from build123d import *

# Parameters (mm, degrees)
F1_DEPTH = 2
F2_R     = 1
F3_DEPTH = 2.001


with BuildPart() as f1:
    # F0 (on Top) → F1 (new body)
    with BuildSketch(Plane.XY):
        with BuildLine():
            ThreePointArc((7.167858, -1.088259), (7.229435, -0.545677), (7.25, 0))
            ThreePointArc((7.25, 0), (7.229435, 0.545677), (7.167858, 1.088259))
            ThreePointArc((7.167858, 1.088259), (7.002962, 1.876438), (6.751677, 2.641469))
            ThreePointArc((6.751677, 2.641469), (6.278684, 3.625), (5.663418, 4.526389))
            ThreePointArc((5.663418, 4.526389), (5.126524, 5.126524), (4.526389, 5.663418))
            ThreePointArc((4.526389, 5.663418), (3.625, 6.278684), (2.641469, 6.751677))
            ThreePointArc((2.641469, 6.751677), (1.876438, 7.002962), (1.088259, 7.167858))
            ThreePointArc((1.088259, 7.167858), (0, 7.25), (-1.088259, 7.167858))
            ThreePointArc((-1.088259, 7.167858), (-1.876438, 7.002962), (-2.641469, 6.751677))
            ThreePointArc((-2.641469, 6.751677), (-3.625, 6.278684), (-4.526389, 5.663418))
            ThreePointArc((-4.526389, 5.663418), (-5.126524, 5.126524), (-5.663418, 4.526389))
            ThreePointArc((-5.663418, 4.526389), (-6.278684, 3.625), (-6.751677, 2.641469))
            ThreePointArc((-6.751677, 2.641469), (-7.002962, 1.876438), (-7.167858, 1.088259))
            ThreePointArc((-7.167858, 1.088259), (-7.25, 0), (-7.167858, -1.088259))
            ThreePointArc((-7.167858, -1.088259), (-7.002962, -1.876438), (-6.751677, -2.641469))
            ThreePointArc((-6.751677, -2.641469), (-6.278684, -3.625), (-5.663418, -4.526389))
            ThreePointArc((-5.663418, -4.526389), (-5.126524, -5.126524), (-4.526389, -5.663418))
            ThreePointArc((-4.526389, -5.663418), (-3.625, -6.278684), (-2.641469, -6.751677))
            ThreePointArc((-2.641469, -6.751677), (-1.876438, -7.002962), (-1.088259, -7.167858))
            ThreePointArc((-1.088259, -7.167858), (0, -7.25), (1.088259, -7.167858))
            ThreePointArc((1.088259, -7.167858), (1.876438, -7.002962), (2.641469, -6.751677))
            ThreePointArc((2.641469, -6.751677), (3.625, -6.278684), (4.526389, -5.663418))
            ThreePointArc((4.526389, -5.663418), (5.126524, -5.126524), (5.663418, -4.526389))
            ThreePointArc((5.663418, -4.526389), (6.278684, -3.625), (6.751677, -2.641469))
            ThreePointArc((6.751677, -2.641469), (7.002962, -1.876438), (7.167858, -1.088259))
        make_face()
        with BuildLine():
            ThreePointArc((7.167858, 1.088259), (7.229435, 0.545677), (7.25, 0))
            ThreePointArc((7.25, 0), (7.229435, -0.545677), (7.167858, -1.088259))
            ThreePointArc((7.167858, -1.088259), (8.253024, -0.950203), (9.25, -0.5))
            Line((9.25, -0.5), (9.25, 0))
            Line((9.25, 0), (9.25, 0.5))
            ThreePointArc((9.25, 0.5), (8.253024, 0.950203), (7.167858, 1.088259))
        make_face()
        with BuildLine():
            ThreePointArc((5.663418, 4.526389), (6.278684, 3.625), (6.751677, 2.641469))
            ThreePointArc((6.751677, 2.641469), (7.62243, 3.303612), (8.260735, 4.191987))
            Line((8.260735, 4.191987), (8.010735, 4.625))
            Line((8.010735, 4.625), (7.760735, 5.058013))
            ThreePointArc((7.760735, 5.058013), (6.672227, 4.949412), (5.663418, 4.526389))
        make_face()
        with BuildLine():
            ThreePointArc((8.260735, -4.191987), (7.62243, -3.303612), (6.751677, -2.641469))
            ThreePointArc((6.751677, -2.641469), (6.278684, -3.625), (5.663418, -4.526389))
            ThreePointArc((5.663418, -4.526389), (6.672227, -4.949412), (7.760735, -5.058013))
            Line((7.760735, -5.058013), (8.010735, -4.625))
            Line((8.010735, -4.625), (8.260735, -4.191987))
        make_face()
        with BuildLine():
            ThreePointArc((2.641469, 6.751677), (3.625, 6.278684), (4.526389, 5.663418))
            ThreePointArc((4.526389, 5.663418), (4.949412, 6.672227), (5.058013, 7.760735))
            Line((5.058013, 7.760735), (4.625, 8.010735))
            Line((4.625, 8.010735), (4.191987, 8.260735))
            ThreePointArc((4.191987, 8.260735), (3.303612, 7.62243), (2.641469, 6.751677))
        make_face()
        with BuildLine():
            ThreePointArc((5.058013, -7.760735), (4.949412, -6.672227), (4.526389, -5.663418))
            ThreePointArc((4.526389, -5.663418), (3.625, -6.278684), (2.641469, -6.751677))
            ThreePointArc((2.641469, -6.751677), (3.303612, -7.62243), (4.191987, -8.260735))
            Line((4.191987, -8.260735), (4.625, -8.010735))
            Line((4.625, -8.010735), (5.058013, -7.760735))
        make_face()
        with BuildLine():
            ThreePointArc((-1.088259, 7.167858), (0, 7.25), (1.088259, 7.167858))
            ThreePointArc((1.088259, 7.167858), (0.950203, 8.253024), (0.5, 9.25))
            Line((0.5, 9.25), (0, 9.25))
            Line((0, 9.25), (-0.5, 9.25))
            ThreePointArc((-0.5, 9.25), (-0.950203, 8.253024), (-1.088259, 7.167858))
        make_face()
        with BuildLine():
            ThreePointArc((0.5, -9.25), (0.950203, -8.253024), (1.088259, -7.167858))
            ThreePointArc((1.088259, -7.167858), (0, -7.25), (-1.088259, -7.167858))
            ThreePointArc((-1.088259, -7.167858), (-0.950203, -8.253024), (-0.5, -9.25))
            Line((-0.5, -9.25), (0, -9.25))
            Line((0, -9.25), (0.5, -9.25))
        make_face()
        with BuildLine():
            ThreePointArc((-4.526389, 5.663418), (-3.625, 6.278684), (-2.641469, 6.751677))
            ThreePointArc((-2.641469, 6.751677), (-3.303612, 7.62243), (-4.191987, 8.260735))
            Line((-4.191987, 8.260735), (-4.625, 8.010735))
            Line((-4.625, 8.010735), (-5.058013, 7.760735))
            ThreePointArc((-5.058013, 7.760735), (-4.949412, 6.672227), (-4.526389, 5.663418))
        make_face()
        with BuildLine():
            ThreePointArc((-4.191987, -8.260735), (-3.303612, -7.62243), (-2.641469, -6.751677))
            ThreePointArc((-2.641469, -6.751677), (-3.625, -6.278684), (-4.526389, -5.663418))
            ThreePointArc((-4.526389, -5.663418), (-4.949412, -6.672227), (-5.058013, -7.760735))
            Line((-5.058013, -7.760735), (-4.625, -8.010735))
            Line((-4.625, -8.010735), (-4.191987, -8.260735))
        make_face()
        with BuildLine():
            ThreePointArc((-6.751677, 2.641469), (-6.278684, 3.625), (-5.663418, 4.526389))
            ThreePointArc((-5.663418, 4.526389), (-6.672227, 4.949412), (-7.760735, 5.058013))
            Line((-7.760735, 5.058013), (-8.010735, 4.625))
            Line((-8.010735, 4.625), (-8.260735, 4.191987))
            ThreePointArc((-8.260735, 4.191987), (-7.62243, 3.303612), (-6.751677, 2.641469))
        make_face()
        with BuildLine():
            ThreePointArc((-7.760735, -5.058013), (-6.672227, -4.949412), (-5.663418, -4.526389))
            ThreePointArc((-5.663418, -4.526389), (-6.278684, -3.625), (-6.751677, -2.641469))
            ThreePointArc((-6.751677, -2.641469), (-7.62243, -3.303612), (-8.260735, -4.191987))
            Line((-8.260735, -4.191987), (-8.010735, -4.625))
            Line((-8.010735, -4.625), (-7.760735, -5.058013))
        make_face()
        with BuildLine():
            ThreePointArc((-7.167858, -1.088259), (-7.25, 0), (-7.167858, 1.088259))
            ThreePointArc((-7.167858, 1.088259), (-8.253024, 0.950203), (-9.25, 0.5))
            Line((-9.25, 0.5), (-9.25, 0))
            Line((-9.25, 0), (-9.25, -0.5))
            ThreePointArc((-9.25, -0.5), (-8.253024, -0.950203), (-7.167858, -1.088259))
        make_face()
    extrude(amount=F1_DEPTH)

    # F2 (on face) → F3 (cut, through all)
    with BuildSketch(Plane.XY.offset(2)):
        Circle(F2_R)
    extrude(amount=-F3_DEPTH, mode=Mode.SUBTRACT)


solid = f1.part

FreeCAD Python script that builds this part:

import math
import FreeCAD as App
import Part
import Sketcher
Q = App.Units.Quantity

doc = App.newDocument("Part")
body = doc.addObject("PartDesign::Body", "Body")

sketch1 = body.newObject("Sketcher::SketchObject", "Sketch")
sketch1.AttachmentSupport = (doc.getObject("XY_Plane"), [""])
sketch1.MapMode = "FlatFace"
sketch1.addGeometry(Part.ArcOfCircle(Part.Circle(App.Vector(-0.000022, -0.000004, 0), App.Vector(0, 0, 1), 7.250022), math.radians(8.633002), math.radians(21.366973)), False)
sketch1.addGeometry(Part.ArcOfCircle(Part.Circle(App.Vector(4.978677, 5.876672, 0), App.Vector(0, 0, 1), 3.689183), math.radians(-61.275778), math.radians(-27.171499)), False)
sketch1.addGeometry(Part.LineSegment(App.Vector(8.260735, 4.191987, 0), App.Vector(7.760735, 5.058013, 0)), False)
sketch1.addGeometry(Part.ArcOfCircle(Part.Circle(App.Vector(7.578686, 1.373326, 0), App.Vector(0, 0, 1), 3.689181), math.radians(87.1715), math.radians(121.275799)), False)
sketch1.addGeometry(Part.ArcOfCircle(Part.Circle(App.Vector(-0.000033, -0.000033, 0), App.Vector(0, 0, 1), 7.250046), math.radians(38.633033), math.radians(51.366967)), False)
sketch1.addGeometry(Part.ArcOfCircle(Part.Circle(App.Vector(1.373326, 7.578686, 0), App.Vector(0, 0, 1), 3.689181), math.radians(-31.275799), math.radians(2.8285)), False)
sketch1.addGeometry(Part.LineSegment(App.Vector(5.058013, 7.760735, 0), App.Vector(4.191987, 8.260735, 0)), False)
sketch1.addGeometry(Part.ArcOfCircle(Part.Circle(App.Vector(5.876672, 4.978677, 0), App.Vector(0, 0, 1), 3.689183), math.radians(117.171499), math.radians(151.275778)), False)
sketch1.addGeometry(Part.ArcOfCircle(Part.Circle(App.Vector(-0.000004, -0.000022, 0), App.Vector(0, 0, 1), 7.250022), math.radians(68.633027), math.radians(81.366998)), False)
sketch1.addGeometry(Part.ArcOfCircle(Part.Circle(App.Vector(-2.600007, 7.249998, 0), App.Vector(0, 0, 1), 3.689181), math.radians(-1.275796), math.radians(32.828514)), False)
sketch1.addGeometry(Part.LineSegment(App.Vector(0.5, 9.25, 0), App.Vector(-0.5, 9.25, 0)), False)
sketch1.addGeometry(Part.ArcOfCircle(Part.Circle(App.Vector(2.600007, 7.249998, 0), App.Vector(0, 0, 1), 3.689181), math.radians(147.171486), math.radians(181.275796)), False)
sketch1.addGeometry(Part.ArcOfCircle(Part.Circle(App.Vector(0.000004, -0.000022, 0), App.Vector(0, 0, 1), 7.250022), math.radians(98.633002), math.radians(111.366973)), False)
sketch1.addGeometry(Part.ArcOfCircle(Part.Circle(App.Vector(-5.876672, 4.978677, 0), App.Vector(0, 0, 1), 3.689183), math.radians(28.724222), math.radians(62.828501)), False)
sketch1.addGeometry(Part.LineSegment(App.Vector(-4.191987, 8.260735, 0), App.Vector(-5.058013, 7.760735, 0)), False)
sketch1.addGeometry(Part.ArcOfCircle(Part.Circle(App.Vector(-1.373326, 7.578686, 0), App.Vector(0, 0, 1), 3.689181), math.radians(177.1715), math.radians(211.275799)), False)
sketch1.addGeometry(Part.ArcOfCircle(Part.Circle(App.Vector(0.000033, -0.000033, 0), App.Vector(0, 0, 1), 7.250046), math.radians(128.633033), math.radians(141.366967)), False)
sketch1.addGeometry(Part.ArcOfCircle(Part.Circle(App.Vector(-7.578686, 1.373326, 0), App.Vector(0, 0, 1), 3.689181), math.radians(58.724201), math.radians(92.8285)), False)
sketch1.addGeometry(Part.LineSegment(App.Vector(-7.760735, 5.058013, 0), App.Vector(-8.260735, 4.191987, 0)), False)
sketch1.addGeometry(Part.ArcOfCircle(Part.Circle(App.Vector(-4.978677, 5.876672, 0), App.Vector(0, 0, 1), 3.689183), math.radians(-152.828501), math.radians(-118.724222)), False)
sketch1.addGeometry(Part.ArcOfCircle(Part.Circle(App.Vector(0.000022, -0.000004, 0), App.Vector(0, 0, 1), 7.250022), math.radians(158.633027), math.radians(171.366998)), False)
sketch1.addGeometry(Part.ArcOfCircle(Part.Circle(App.Vector(-7.249998, -2.600007, 0), App.Vector(0, 0, 1), 3.689181), math.radians(88.724204), math.radians(122.828514)), False)
sketch1.addGeometry(Part.LineSegment(App.Vector(-9.25, 0.5, 0), App.Vector(-9.25, -0.5, 0)), False)
sketch1.addGeometry(Part.ArcOfCircle(Part.Circle(App.Vector(-7.249998, 2.600007, 0), App.Vector(0, 0, 1), 3.689181), math.radians(-122.828514), math.radians(-88.724204)), False)
sketch1.addGeometry(Part.ArcOfCircle(Part.Circle(App.Vector(0.000022, 0.000004, 0), App.Vector(0, 0, 1), 7.250022), math.radians(-171.366998), math.radians(-158.633027)), False)
sketch1.addGeometry(Part.ArcOfCircle(Part.Circle(App.Vector(-4.978677, -5.876672, 0), App.Vector(0, 0, 1), 3.689183), math.radians(118.724222), math.radians(152.828501)), False)
sketch1.addGeometry(Part.LineSegment(App.Vector(-8.260735, -4.191987, 0), App.Vector(-7.760735, -5.058013, 0)), False)
sketch1.addGeometry(Part.ArcOfCircle(Part.Circle(App.Vector(-7.578686, -1.373326, 0), App.Vector(0, 0, 1), 3.689181), math.radians(-92.8285), math.radians(-58.724201)), False)
sketch1.addGeometry(Part.ArcOfCircle(Part.Circle(App.Vector(0.000033, 0.000033, 0), App.Vector(0, 0, 1), 7.250046), math.radians(-141.366967), math.radians(-128.633033)), False)
sketch1.addGeometry(Part.ArcOfCircle(Part.Circle(App.Vector(-1.373326, -7.578686, 0), App.Vector(0, 0, 1), 3.689181), math.radians(148.724201), math.radians(182.8285)), False)
sketch1.addGeometry(Part.LineSegment(App.Vector(-5.058013, -7.760735, 0), App.Vector(-4.191987, -8.260735, 0)), False)
sketch1.addGeometry(Part.ArcOfCircle(Part.Circle(App.Vector(-5.876672, -4.978677, 0), App.Vector(0, 0, 1), 3.689183), math.radians(-62.828501), math.radians(-28.724222)), False)
sketch1.addGeometry(Part.ArcOfCircle(Part.Circle(App.Vector(0.000004, 0.000022, 0), App.Vector(0, 0, 1), 7.250022), math.radians(-111.366973), math.radians(-98.633002)), False)
sketch1.addGeometry(Part.ArcOfCircle(Part.Circle(App.Vector(2.600007, -7.249998, 0), App.Vector(0, 0, 1), 3.689181), math.radians(178.724204), math.radians(212.828514)), False)
sketch1.addGeometry(Part.LineSegment(App.Vector(-0.5, -9.25, 0), App.Vector(0.5, -9.25, 0)), False)
sketch1.addGeometry(Part.ArcOfCircle(Part.Circle(App.Vector(-2.600007, -7.249998, 0), App.Vector(0, 0, 1), 3.689181), math.radians(-32.828514), math.radians(1.275796)), False)
sketch1.addGeometry(Part.ArcOfCircle(Part.Circle(App.Vector(-0.000004, 0.000022, 0), App.Vector(0, 0, 1), 7.250022), math.radians(-81.366998), math.radians(-68.633027)), False)
sketch1.addGeometry(Part.ArcOfCircle(Part.Circle(App.Vector(5.876672, -4.978677, 0), App.Vector(0, 0, 1), 3.689183), math.radians(-151.275778), math.radians(-117.171499)), False)
sketch1.addGeometry(Part.LineSegment(App.Vector(4.191987, -8.260735, 0), App.Vector(5.058013, -7.760735, 0)), False)
sketch1.addGeometry(Part.ArcOfCircle(Part.Circle(App.Vector(1.373326, -7.578686, 0), App.Vector(0, 0, 1), 3.689181), math.radians(-2.8285), math.radians(31.275799)), False)
sketch1.addGeometry(Part.ArcOfCircle(Part.Circle(App.Vector(-0.000033, 0.000033, 0), App.Vector(0, 0, 1), 7.250046), math.radians(-51.366967), math.radians(-38.633033)), False)
sketch1.addGeometry(Part.ArcOfCircle(Part.Circle(App.Vector(7.578686, -1.373326, 0), App.Vector(0, 0, 1), 3.689181), math.radians(-121.275799), math.radians(-87.1715)), False)
sketch1.addGeometry(Part.LineSegment(App.Vector(7.760735, -5.058013, 0), App.Vector(8.260735, -4.191987, 0)), False)
sketch1.addGeometry(Part.ArcOfCircle(Part.Circle(App.Vector(4.978677, -5.876672, 0), App.Vector(0, 0, 1), 3.689183), math.radians(27.171499), math.radians(61.275778)), False)
sketch1.addGeometry(Part.ArcOfCircle(Part.Circle(App.Vector(-0.000022, 0.000004, 0), App.Vector(0, 0, 1), 7.250022), math.radians(-21.366973), math.radians(-8.633002)), False)
sketch1.addGeometry(Part.ArcOfCircle(Part.Circle(App.Vector(7.249998, 2.600007, 0), App.Vector(0, 0, 1), 3.689181), math.radians(-91.275796), math.radians(-57.171486)), False)
sketch1.addGeometry(Part.LineSegment(App.Vector(9.25, -0.5, 0), App.Vector(9.25, 0.5, 0)), False)
sketch1.addGeometry(Part.ArcOfCircle(Part.Circle(App.Vector(7.249998, -2.600007, 0), App.Vector(0, 0, 1), 3.689181), math.radians(57.171486), math.radians(91.275796)), False)
sketch1.addConstraint(Sketcher.Constraint("Coincident", 0, 2, 1, 1))
sketch1.addConstraint(Sketcher.Constraint("Coincident", 1, 2, 2, 1))
sketch1.addConstraint(Sketcher.Constraint("Coincident", 2, 2, 3, 1))
sketch1.addConstraint(Sketcher.Constraint("Coincident", 3, 2, 4, 1))
sketch1.addConstraint(Sketcher.Constraint("Coincident", 4, 2, 5, 1))
sketch1.addConstraint(Sketcher.Constraint("Coincident", 5, 2, 6, 1))
sketch1.addConstraint(Sketcher.Constraint("Coincident", 6, 2, 7, 1))
sketch1.addConstraint(Sketcher.Constraint("Coincident", 7, 2, 8, 1))
sketch1.addConstraint(Sketcher.Constraint("Coincident", 8, 2, 9, 1))
sketch1.addConstraint(Sketcher.Constraint("Coincident", 9, 2, 10, 1))
sketch1.addConstraint(Sketcher.Constraint("Coincident", 10, 2, 11, 1))
sketch1.addConstraint(Sketcher.Constraint("Coincident", 11, 2, 12, 1))
sketch1.addConstraint(Sketcher.Constraint("Coincident", 12, 2, 13, 1))
sketch1.addConstraint(Sketcher.Constraint("Coincident", 13, 2, 14, 1))
sketch1.addConstraint(Sketcher.Constraint("Coincident", 14, 2, 15, 1))
sketch1.addConstraint(Sketcher.Constraint("Coincident", 15, 2, 16, 1))
sketch1.addConstraint(Sketcher.Constraint("Coincident", 16, 2, 17, 1))
sketch1.addConstraint(Sketcher.Constraint("Coincident", 17, 2, 18, 1))
sketch1.addConstraint(Sketcher.Constraint("Coincident", 18, 2, 19, 1))
sketch1.addConstraint(Sketcher.Constraint("Coincident", 19, 2, 20, 1))
sketch1.addConstraint(Sketcher.Constraint("Coincident", 20, 2, 21, 1))
sketch1.addConstraint(Sketcher.Constraint("Coincident", 21, 2, 22, 1))
sketch1.addConstraint(Sketcher.Constraint("Coincident", 22, 2, 23, 1))
sketch1.addConstraint(Sketcher.Constraint("Coincident", 23, 2, 24, 1))
sketch1.addConstraint(Sketcher.Constraint("Coincident", 24, 2, 25, 1))
sketch1.addConstraint(Sketcher.Constraint("Coincident", 25, 2, 26, 1))
sketch1.addConstraint(Sketcher.Constraint("Coincident", 26, 2, 27, 1))
sketch1.addConstraint(Sketcher.Constraint("Coincident", 27, 2, 28, 1))
sketch1.addConstraint(Sketcher.Constraint("Coincident", 28, 2, 29, 1))
sketch1.addConstraint(Sketcher.Constraint("Coincident", 29, 2, 30, 1))
sketch1.addConstraint(Sketcher.Constraint("Coincident", 30, 2, 31, 1))
sketch1.addConstraint(Sketcher.Constraint("Coincident", 31, 2, 32, 1))
sketch1.addConstraint(Sketcher.Constraint("Coincident", 32, 2, 33, 1))
sketch1.addConstraint(Sketcher.Constraint("Coincident", 33, 2, 34, 1))
sketch1.addConstraint(Sketcher.Constraint("Coincident", 34, 2, 35, 1))
sketch1.addConstraint(Sketcher.Constraint("Coincident", 35, 2, 36, 1))
sketch1.addConstraint(Sketcher.Constraint("Coincident", 36, 2, 37, 1))
sketch1.addConstraint(Sketcher.Constraint("Coincident", 37, 2, 38, 1))
sketch1.addConstraint(Sketcher.Constraint("Coincident", 38, 2, 39, 1))
sketch1.addConstraint(Sketcher.Constraint("Coincident", 39, 2, 40, 1))
sketch1.addConstraint(Sketcher.Constraint("Coincident", 40, 2, 41, 1))
sketch1.addConstraint(Sketcher.Constraint("Coincident", 41, 2, 42, 1))
sketch1.addConstraint(Sketcher.Constraint("Coincident", 42, 2, 43, 1))
sketch1.addConstraint(Sketcher.Constraint("Coincident", 43, 2, 44, 1))
sketch1.addConstraint(Sketcher.Constraint("Coincident", 44, 2, 45, 1))
sketch1.addConstraint(Sketcher.Constraint("Coincident", 45, 2, 46, 1))
sketch1.addConstraint(Sketcher.Constraint("Coincident", 46, 2, 47, 1))
sketch1.addConstraint(Sketcher.Constraint("Coincident", 47, 2, 0, 1))
sketch1.addConstraint(Sketcher.Constraint("Horizontal", 10))
sketch1.addConstraint(Sketcher.Constraint("Vertical", 22))
sketch1.addConstraint(Sketcher.Constraint("Horizontal", 34))
sketch1.addConstraint(Sketcher.Constraint("Vertical", 46))
sketch1.addConstraint(Sketcher.Constraint("Coincident", 12, 3, 8, 3))
sketch1.addConstraint(Sketcher.Constraint("Coincident", 24, 3, 20, 3))
sketch1.addConstraint(Sketcher.Constraint("Coincident", 36, 3, 32, 3))
sketch1.addConstraint(Sketcher.Constraint("Coincident", 44, 3, 0, 3))
sketch1.addConstraint(Sketcher.Constraint("Equal", 1, 3))
sketch1.addConstraint(Sketcher.Constraint("Equal", 3, 5))
sketch1.addConstraint(Sketcher.Constraint("Equal", 5, 7))
sketch1.addConstraint(Sketcher.Constraint("Equal", 0, 8))
sketch1.addConstraint(Sketcher.Constraint("Equal", 5, 9))
sketch1.addConstraint(Sketcher.Constraint("Equal", 9, 11))
sketch1.addConstraint(Sketcher.Constraint("Equal", 8, 12))
sketch1.addConstraint(Sketcher.Constraint("Equal", 7, 13))
sketch1.addConstraint(Sketcher.Constraint("Equal", 13, 15))
sketch1.addConstraint(Sketcher.Constraint("Equal", 4, 16))
sketch1.addConstraint(Sketcher.Constraint("Equal", 15, 17))
sketch1.addConstraint(Sketcher.Constraint("Equal", 17, 19))
sketch1.addConstraint(Sketcher.Constraint("Equal", 12, 20))
sketch1.addConstraint(Sketcher.Constraint("Equal", 17, 21))
sketch1.addConstraint(Sketcher.Constraint("Equal", 21, 23))
sketch1.addConstraint(Sketcher.Constraint("Equal", 20, 24))
sketch1.addConstraint(Sketcher.Constraint("Equal", 19, 25))
sketch1.addConstraint(Sketcher.Constraint("Equal", 25, 27))
sketch1.addConstraint(Sketcher.Constraint("Equal", 16, 28))
sketch1.addConstraint(Sketcher.Constraint("Equal", 27, 29))
sketch1.addConstraint(Sketcher.Constraint("Equal", 29, 31))
sketch1.addConstraint(Sketcher.Constraint("Equal", 24, 32))
sketch1.addConstraint(Sketcher.Constraint("Equal", 29, 33))
sketch1.addConstraint(Sketcher.Constraint("Equal", 33, 35))
sketch1.addConstraint(Sketcher.Constraint("Equal", 32, 36))
sketch1.addConstraint(Sketcher.Constraint("Equal", 31, 37))
sketch1.addConstraint(Sketcher.Constraint("Equal", 37, 39))
sketch1.addConstraint(Sketcher.Constraint("Equal", 28, 40))
sketch1.addConstraint(Sketcher.Constraint("Equal", 39, 41))
sketch1.addConstraint(Sketcher.Constraint("Equal", 41, 43))
sketch1.addConstraint(Sketcher.Constraint("Equal", 36, 44))
sketch1.addConstraint(Sketcher.Constraint("Equal", 41, 45))
sketch1.addConstraint(Sketcher.Constraint("Equal", 45, 47))
sketch1.addConstraint(Sketcher.Constraint("Symmetric", 0, 3, 20, 3, -1, 1))
sketch1.addConstraint(Sketcher.Constraint("Symmetric", 1, 3, 25, 3, -1, 1))
sketch1.addConstraint(Sketcher.Constraint("Symmetric", 3, 3, 27, 3, -1, 1))
sketch1.addConstraint(Sketcher.Constraint("Symmetric", 4, 3, 28, 3, -1, 1))
sketch1.addConstraint(Sketcher.Constraint("Symmetric", 5, 3, 29, 3, -1, 1))
sketch1.addConstraint(Sketcher.Constraint("Symmetric", 7, 3, 31, 3, -1, 1))
sketch1.addConstraint(Sketcher.Constraint("Symmetric", 8, 3, 32, 3, -1, 1))
sketch1.addConstraint(Sketcher.Constraint("Symmetric", 9, 3, 33, 3, -1, 1))
sketch1.addConstraint(Sketcher.Constraint("Symmetric", 11, 3, 35, 3, -1, 1))
sketch1.addConstraint(Sketcher.Constraint("Symmetric", 13, 3, 37, 3, -1, 1))
sketch1.addConstraint(Sketcher.Constraint("Symmetric", 15, 3, 39, 3, -1, 1))
sketch1.addConstraint(Sketcher.Constraint("Symmetric", 16, 3, 40, 3, -1, 1))
sketch1.addConstraint(Sketcher.Constraint("Symmetric", 17, 3, 41, 3, -1, 1))
sketch1.addConstraint(Sketcher.Constraint("Symmetric", 19, 3, 43, 3, -1, 1))
sketch1.addConstraint(Sketcher.Constraint("Symmetric", 21, 3, 45, 3, -1, 1))
sketch1.addConstraint(Sketcher.Constraint("Symmetric", 23, 3, 47, 3, -1, 1))
sketch1.addConstraint(Sketcher.Constraint("Symmetric", 9, 3, 11, 3, -2))
sketch1.addConstraint(Sketcher.Constraint("Symmetric", 7, 3, 13, 3, -2))
sketch1.addConstraint(Sketcher.Constraint("Symmetric", 5, 3, 15, 3, -2))
sketch1.addConstraint(Sketcher.Constraint("Symmetric", 4, 3, 16, 3, -2))
sketch1.addConstraint(Sketcher.Constraint("Symmetric", 3, 3, 17, 3, -2))
sketch1.addConstraint(Sketcher.Constraint("Symmetric", 1, 3, 19, 3, -2))
sketch1.addConstraint(Sketcher.Constraint("Symmetric", 23, 3, 45, 3, -2))
sketch1.addConstraint(Sketcher.Constraint("Perpendicular", 2, 14))
sketch1.addConstraint(Sketcher.Constraint("Perpendicular", 6, 18))
sketch1.addConstraint(Sketcher.Constraint("Perpendicular", 14, 26))
sketch1.addConstraint(Sketcher.Constraint("Perpendicular", 18, 30))
sketch1.addConstraint(Sketcher.Constraint("Perpendicular", 26, 38))
sketch1.addConstraint(Sketcher.Constraint("Perpendicular", 30, 42))
sketch1.addConstraint(Sketcher.Constraint("Horizontal", 0, 3, 20, 3))
sketch1.addConstraint(Sketcher.Constraint("Horizontal", 8, 2, 11, 2))
sketch1.addConstraint(Sketcher.Constraint("Horizontal", 6, 2, 13, 2))
sketch1.addConstraint(Sketcher.Constraint("Horizontal", 5, 2, 14, 2))
sketch1.addConstraint(Sketcher.Constraint("Horizontal", 2, 2, 17, 2))
sketch1.addConstraint(Sketcher.Constraint("Horizontal", 30, 2, 37, 2))
sketch1.addConstraint(Sketcher.Constraint("Horizontal", 26, 2, 41, 2))
sketch1.addConstraint(Sketcher.Constraint("Horizontal", 22, 2, 45, 2))
sketch1.addConstraint(Sketcher.Constraint("Vertical", 18, 2, 25, 2))
sketch1.addConstraint(Sketcher.Constraint("Vertical", 14, 2, 29, 2))
sketch1.addConstraint(Sketcher.Constraint("Vertical", 10, 2, 33, 2))
sketch1.addConstraint(Sketcher.Constraint("Equal", 34, 22))
sketch1.addConstraint(Sketcher.Constraint("Equal", 2, 6))
sketch1.addConstraint(Sketcher.Constraint("DistanceX", 10, 2, 10, 1, 1.0))
sketch1.addConstraint(Sketcher.Constraint("Angle", 2, Q("119.999983 deg")))
sketch1.addConstraint(Sketcher.Constraint("Distance", 2, 1.000001))
sketch1.addConstraint(Sketcher.Constraint("DistanceY", -1, 1, 9, 2, 9.25))
sketch1.addConstraint(Sketcher.Constraint("DistanceX", 21, 2, -1, 1, 9.25))
sketch1.addConstraint(Sketcher.Constraint("Radius", 3, 3.689181))
sketch1.addConstraint(Sketcher.Constraint("Radius", 0, 7.250022))
sketch1.addConstraint(Sketcher.Constraint("Radius", 4, 7.250046))
sketch1.addConstraint(Sketcher.Constraint("DistanceY", -1, 1, 0, 2, 2.641469))
sketch1.addConstraint(Sketcher.Constraint("DistanceX", -1, 1, 3, 2, 5.663418))
sketch1.addConstraint(Sketcher.Constraint("DistanceY", -1, 1, 3, 2, 4.526389))
sketch1.addConstraint(Sketcher.Constraint("DistanceX", -1, 1, 4, 2, 4.526389))
sketch1.addConstraint(Sketcher.Constraint("DistanceX", -1, 1, 7, 2, 2.641469))
sketch1.addConstraint(Sketcher.Constraint("DistanceX", -1, 1, 8, 2, 1.088259))
sketch1.addConstraint(Sketcher.Constraint("DistanceY", -1, 1, 11, 2, 7.167858))
sketch1.addConstraint(Sketcher.Constraint("DistanceY", -1, 1, 15, 2, 5.663418))
sketch1.addConstraint(Sketcher.Constraint("DistanceY", -1, 1, 20, 2, 1.088259))
sketch1.addConstraint(Sketcher.Constraint("DistanceX", 23, 2, -1, 1, 7.167858))
sketch1.addConstraint(Sketcher.Constraint("DistanceX", -1, 1, 1, 3, 4.978677))
sketch1.addConstraint(Sketcher.Constraint("DistanceX", -1, 1, 3, 3, 7.578686))
sketch1.addConstraint(Sketcher.Constraint("DistanceX", -1, 1, 5, 3, 1.373326))
sketch1.addConstraint(Sketcher.Constraint("DistanceX", -1, 1, 7, 3, 5.876672))
pad1 = body.newObject("PartDesign::Pad", "Pad")
pad1.Profile = sketch1
pad1.Length = 2

sketch2 = body.newObject("Sketcher::SketchObject", "Sketch001")
sketch2.AttachmentSupport = (doc.getObject("XY_Plane"), [""])
sketch2.MapMode = "FlatFace"
sketch2.AttachmentOffset = App.Placement(App.Vector(0, 0, 2), App.Rotation())
sketch2.addGeometry(Part.Circle(App.Vector(0, 0, 0), App.Vector(0, 0, 1), 1), False)
sketch2.addConstraint(Sketcher.Constraint("Coincident", 0, 3, -1, 1))
sketch2.addConstraint(Sketcher.Constraint("Diameter", 0, 2.0))
pocket1 = body.newObject("PartDesign::Pocket", "Pocket")
pocket1.Profile = sketch2
pocket1.Type = "ThroughAll"

doc.recompute()
